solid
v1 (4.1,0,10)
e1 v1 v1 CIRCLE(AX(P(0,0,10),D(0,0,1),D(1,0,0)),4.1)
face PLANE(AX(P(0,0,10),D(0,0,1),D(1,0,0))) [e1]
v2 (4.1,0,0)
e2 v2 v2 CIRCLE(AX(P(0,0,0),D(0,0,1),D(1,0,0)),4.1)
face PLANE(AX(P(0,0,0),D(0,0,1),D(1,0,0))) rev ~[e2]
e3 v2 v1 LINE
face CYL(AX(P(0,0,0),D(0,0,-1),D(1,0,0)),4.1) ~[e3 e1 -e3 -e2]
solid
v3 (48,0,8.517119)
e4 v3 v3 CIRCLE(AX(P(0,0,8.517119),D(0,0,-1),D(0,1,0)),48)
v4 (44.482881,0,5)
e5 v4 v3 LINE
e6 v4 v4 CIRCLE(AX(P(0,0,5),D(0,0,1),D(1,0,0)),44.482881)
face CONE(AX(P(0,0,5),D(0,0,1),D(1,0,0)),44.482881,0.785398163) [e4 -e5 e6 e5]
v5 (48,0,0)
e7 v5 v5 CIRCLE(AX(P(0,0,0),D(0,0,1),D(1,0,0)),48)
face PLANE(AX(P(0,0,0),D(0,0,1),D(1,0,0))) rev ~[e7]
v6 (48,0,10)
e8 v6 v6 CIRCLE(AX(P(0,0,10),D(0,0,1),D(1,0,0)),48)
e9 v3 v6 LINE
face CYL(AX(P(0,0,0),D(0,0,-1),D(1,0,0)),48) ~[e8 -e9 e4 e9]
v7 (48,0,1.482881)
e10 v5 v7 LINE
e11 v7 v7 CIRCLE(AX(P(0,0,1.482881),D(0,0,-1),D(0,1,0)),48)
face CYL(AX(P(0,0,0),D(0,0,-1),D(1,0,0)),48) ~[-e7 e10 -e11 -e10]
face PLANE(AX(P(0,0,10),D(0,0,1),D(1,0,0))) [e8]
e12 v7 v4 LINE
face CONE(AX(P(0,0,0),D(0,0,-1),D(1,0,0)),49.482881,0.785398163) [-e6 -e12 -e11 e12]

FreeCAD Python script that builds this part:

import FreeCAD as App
import Part
import Sketcher
Q = App.Units.Quantity


def add_polygon(sketch, points):
    """Adds a closed chain of lines whose ends are joined by coincident constraints."""
    first, n = sketch.GeometryCount, len(points)
    for a, b in zip(points, points[1:] + points[:1]):
        sketch.addGeometry(Part.LineSegment(App.Vector(*a, 0), App.Vector(*b, 0)), False)
    for i in range(n):
        sketch.addConstraint(Sketcher.Constraint("Coincident", first + i, 2, first + (i + 1) % n, 1))

doc = App.newDocument("Part")
params = doc.addObject("Spreadsheet::Sheet", "Params")
for row, (alias, value) in enumerate([
    ("sketch1_diameter", "8.2 mm"),
    ("pad1_length", "10 mm"),
    ("sketch2_height", "10 mm"),
    ("revolution_angle", "360 deg"),
    ("sketch3_diameter", "96 mm"),
    ("pad2_length", "10 mm"),
], start=1):
    params.set(f"A{row}", alias)
    params.set(f"B{row}", "=" + value)
    params.setAlias(f"B{row}", alias)

body = doc.addObject("PartDesign::Body", "Body")

sketch1 = body.newObject("Sketcher::SketchObject", "Sketch")
sketch1.AttachmentSupport = (doc.getObject("XY_Plane"), [""])
sketch1.MapMode = "FlatFace"
sketch1.addGeometry(Part.Circle(App.Vector(0, 0, 0), App.Vector(0, 0, 1), 4.1), False)
sketch1.addConstraint([
    Sketcher.Constraint("Coincident", 0, 3, -1, 1),
    Sketcher.Constraint("Diameter", 0, Q("8.2 mm")),
])
sketch1.setExpression("Constraints[1]", "Params.sketch1_diameter")
pad1 = body.newObject("PartDesign::Pad", "Pad")
pad1.Profile = sketch1
pad1.setExpression("Length", "Params.pad1_length")
body2 = doc.addObject("PartDesign::Body", "Body001")

sketch2 = body2.newObject("Sketcher::SketchObject", "Sketch001")
sketch2.AttachmentSupport = (doc.getObject("XZ_Plane001"), [""])
sketch2.MapMode = "FlatFace"
add_polygon(sketch2, [(49.482881, 10), (44.482881, 5), (49.482881, 0)])
sketch2.addConstraint([
    Sketcher.Constraint("Vertical", 2),
    Sketcher.Constraint("PointOnObject", 1, 2, -1),
    Sketcher.Constraint("Perpendicular", 0, 1),
    Sketcher.Constraint("Equal", 0, 1),
    Sketcher.Constraint("DistanceY", 2, 1, 2, 2, Q("10 mm")),
    Sketcher.Constraint("DistanceX", -1, 1, 0, 2, Q("44.482881 mm")),
])
sketch2.setExpression("Constraints[7]", "Params.sketch2_height")
revolution = body2.newObject("PartDesign::Revolution", "Revolution")
revolution.Profile = sketch2
revolution.ReferenceAxis = (sketch2, ["V_Axis"])
revolution.setExpression("Angle", "Params.revolution_angle")
body3 = doc.addObject("PartDesign::Body", "Body002")

sketch3 = body3.newObject("Sketcher::SketchObject", "Sketch002")
sketch3.AttachmentSupport = (doc.getObject("XY_Plane002"), [""])
sketch3.MapMode = "FlatFace"
sketch3.addGeometry(Part.Circle(App.Vector(0, 0, 0), App.Vector(0, 0, 1), 48), False)
sketch3.addConstraint([
    Sketcher.Constraint("Coincident", 0, 3, -1, 1),
    Sketcher.Constraint("Diameter", 0, Q("96 mm")),
])
sketch3.setExpression("Constraints[1]", "Params.sketch3_diameter")
pad2 = body3.newObject("PartDesign::Pad", "Pad001")
pad2.Profile = sketch3
pad2.setExpression("Length", "Params.pad2_length")
doc.recompute()

boolean = body3.newObject("PartDesign::Boolean", "Boolean")
boolean.Type = "Cut"
boolean.addObjects([body2])

doc.recompute()
